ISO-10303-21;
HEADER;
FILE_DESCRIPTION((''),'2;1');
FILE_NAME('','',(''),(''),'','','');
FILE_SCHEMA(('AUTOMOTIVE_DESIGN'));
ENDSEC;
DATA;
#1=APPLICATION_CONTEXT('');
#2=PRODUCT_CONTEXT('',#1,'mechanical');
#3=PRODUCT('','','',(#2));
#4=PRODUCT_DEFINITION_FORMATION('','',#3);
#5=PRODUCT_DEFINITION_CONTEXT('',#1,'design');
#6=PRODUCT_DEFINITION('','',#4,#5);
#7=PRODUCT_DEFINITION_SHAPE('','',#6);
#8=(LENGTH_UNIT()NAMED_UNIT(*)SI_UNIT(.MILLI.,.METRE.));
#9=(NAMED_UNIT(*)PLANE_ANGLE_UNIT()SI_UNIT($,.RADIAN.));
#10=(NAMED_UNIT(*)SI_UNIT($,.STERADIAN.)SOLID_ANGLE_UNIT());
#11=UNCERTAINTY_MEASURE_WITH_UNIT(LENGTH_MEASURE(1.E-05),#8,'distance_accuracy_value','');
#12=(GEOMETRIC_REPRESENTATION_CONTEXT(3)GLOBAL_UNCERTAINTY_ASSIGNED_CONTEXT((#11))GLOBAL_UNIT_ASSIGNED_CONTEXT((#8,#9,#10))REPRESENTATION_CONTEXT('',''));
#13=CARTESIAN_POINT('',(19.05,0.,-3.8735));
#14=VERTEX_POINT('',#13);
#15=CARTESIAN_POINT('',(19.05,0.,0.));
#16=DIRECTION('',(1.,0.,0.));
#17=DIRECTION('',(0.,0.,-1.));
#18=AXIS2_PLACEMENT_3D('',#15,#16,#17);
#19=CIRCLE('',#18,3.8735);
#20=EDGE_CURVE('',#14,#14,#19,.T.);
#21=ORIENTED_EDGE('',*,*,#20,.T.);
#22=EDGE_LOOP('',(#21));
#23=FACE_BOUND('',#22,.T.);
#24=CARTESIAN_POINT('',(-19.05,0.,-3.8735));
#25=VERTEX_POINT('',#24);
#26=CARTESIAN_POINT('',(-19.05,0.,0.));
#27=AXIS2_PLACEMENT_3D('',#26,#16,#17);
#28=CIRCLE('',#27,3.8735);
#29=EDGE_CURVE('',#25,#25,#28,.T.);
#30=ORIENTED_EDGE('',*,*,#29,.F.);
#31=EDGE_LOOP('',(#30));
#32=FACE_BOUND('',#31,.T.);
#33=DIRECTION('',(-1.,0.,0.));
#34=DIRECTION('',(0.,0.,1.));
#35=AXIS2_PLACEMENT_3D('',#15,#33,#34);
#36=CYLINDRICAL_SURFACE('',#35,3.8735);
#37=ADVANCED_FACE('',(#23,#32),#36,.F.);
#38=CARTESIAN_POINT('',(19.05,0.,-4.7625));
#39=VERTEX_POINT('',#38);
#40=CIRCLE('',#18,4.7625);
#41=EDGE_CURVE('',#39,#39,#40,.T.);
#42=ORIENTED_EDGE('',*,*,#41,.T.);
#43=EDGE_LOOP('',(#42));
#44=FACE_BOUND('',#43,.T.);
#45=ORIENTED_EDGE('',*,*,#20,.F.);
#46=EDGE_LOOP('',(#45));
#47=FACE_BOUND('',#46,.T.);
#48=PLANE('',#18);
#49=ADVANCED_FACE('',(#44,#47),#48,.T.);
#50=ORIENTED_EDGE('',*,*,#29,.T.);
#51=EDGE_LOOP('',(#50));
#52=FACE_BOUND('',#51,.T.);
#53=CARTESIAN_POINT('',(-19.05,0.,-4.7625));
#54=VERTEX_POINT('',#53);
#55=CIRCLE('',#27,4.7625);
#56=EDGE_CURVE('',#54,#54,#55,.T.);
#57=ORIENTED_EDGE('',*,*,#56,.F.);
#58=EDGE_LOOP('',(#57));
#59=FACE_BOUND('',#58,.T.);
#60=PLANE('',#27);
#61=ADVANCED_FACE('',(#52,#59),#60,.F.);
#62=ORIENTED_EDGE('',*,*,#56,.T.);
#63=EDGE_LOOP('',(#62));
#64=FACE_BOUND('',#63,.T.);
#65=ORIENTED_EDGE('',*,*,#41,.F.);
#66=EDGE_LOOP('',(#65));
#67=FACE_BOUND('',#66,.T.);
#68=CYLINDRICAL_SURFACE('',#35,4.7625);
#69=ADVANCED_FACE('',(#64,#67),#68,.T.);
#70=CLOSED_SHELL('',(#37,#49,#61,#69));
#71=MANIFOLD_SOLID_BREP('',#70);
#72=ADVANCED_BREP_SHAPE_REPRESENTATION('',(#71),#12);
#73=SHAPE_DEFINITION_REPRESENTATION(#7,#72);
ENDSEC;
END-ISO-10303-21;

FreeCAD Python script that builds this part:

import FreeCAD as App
import Part
import Sketcher
from FreeCAD import Vector
Q = App.Units.Quantity

doc = App.newDocument("Part")
body = doc.addObject("PartDesign::Body", "Body")

sketch1 = body.newObject("Sketcher::SketchObject", "Sketch")
sketch1.AttachmentSupport = (doc.getObject("YZ_Plane"), [""])
sketch1.MapMode = "FlatFace"
sketch1.addGeometry(Part.Circle(Vector(0, 0, 0), Vector(0, 0, 1), 4.8), False)
sketch1.addGeometry(Part.Circle(Vector(0, 0, 0), Vector(0, 0, 1), 3.9), False)
sketch1.addConstraint(Sketcher.Constraint("Coincident", 0, 3, -1, 1))
sketch1.addConstraint(Sketcher.Constraint("Coincident", 1, 3, -1, 1))
sketch1.addConstraint(Sketcher.Constraint("Diameter", 0, Q("0.375 in")))
sketch1.addConstraint(Sketcher.Constraint("Diameter", 1, Q("0.305 in")))
pad1 = body.newObject("PartDesign::Pad", "Pad")
pad1.Profile = sketch1
pad1.Length = Q("1.5 in")
pad1.Midplane = True

doc.recompute()
